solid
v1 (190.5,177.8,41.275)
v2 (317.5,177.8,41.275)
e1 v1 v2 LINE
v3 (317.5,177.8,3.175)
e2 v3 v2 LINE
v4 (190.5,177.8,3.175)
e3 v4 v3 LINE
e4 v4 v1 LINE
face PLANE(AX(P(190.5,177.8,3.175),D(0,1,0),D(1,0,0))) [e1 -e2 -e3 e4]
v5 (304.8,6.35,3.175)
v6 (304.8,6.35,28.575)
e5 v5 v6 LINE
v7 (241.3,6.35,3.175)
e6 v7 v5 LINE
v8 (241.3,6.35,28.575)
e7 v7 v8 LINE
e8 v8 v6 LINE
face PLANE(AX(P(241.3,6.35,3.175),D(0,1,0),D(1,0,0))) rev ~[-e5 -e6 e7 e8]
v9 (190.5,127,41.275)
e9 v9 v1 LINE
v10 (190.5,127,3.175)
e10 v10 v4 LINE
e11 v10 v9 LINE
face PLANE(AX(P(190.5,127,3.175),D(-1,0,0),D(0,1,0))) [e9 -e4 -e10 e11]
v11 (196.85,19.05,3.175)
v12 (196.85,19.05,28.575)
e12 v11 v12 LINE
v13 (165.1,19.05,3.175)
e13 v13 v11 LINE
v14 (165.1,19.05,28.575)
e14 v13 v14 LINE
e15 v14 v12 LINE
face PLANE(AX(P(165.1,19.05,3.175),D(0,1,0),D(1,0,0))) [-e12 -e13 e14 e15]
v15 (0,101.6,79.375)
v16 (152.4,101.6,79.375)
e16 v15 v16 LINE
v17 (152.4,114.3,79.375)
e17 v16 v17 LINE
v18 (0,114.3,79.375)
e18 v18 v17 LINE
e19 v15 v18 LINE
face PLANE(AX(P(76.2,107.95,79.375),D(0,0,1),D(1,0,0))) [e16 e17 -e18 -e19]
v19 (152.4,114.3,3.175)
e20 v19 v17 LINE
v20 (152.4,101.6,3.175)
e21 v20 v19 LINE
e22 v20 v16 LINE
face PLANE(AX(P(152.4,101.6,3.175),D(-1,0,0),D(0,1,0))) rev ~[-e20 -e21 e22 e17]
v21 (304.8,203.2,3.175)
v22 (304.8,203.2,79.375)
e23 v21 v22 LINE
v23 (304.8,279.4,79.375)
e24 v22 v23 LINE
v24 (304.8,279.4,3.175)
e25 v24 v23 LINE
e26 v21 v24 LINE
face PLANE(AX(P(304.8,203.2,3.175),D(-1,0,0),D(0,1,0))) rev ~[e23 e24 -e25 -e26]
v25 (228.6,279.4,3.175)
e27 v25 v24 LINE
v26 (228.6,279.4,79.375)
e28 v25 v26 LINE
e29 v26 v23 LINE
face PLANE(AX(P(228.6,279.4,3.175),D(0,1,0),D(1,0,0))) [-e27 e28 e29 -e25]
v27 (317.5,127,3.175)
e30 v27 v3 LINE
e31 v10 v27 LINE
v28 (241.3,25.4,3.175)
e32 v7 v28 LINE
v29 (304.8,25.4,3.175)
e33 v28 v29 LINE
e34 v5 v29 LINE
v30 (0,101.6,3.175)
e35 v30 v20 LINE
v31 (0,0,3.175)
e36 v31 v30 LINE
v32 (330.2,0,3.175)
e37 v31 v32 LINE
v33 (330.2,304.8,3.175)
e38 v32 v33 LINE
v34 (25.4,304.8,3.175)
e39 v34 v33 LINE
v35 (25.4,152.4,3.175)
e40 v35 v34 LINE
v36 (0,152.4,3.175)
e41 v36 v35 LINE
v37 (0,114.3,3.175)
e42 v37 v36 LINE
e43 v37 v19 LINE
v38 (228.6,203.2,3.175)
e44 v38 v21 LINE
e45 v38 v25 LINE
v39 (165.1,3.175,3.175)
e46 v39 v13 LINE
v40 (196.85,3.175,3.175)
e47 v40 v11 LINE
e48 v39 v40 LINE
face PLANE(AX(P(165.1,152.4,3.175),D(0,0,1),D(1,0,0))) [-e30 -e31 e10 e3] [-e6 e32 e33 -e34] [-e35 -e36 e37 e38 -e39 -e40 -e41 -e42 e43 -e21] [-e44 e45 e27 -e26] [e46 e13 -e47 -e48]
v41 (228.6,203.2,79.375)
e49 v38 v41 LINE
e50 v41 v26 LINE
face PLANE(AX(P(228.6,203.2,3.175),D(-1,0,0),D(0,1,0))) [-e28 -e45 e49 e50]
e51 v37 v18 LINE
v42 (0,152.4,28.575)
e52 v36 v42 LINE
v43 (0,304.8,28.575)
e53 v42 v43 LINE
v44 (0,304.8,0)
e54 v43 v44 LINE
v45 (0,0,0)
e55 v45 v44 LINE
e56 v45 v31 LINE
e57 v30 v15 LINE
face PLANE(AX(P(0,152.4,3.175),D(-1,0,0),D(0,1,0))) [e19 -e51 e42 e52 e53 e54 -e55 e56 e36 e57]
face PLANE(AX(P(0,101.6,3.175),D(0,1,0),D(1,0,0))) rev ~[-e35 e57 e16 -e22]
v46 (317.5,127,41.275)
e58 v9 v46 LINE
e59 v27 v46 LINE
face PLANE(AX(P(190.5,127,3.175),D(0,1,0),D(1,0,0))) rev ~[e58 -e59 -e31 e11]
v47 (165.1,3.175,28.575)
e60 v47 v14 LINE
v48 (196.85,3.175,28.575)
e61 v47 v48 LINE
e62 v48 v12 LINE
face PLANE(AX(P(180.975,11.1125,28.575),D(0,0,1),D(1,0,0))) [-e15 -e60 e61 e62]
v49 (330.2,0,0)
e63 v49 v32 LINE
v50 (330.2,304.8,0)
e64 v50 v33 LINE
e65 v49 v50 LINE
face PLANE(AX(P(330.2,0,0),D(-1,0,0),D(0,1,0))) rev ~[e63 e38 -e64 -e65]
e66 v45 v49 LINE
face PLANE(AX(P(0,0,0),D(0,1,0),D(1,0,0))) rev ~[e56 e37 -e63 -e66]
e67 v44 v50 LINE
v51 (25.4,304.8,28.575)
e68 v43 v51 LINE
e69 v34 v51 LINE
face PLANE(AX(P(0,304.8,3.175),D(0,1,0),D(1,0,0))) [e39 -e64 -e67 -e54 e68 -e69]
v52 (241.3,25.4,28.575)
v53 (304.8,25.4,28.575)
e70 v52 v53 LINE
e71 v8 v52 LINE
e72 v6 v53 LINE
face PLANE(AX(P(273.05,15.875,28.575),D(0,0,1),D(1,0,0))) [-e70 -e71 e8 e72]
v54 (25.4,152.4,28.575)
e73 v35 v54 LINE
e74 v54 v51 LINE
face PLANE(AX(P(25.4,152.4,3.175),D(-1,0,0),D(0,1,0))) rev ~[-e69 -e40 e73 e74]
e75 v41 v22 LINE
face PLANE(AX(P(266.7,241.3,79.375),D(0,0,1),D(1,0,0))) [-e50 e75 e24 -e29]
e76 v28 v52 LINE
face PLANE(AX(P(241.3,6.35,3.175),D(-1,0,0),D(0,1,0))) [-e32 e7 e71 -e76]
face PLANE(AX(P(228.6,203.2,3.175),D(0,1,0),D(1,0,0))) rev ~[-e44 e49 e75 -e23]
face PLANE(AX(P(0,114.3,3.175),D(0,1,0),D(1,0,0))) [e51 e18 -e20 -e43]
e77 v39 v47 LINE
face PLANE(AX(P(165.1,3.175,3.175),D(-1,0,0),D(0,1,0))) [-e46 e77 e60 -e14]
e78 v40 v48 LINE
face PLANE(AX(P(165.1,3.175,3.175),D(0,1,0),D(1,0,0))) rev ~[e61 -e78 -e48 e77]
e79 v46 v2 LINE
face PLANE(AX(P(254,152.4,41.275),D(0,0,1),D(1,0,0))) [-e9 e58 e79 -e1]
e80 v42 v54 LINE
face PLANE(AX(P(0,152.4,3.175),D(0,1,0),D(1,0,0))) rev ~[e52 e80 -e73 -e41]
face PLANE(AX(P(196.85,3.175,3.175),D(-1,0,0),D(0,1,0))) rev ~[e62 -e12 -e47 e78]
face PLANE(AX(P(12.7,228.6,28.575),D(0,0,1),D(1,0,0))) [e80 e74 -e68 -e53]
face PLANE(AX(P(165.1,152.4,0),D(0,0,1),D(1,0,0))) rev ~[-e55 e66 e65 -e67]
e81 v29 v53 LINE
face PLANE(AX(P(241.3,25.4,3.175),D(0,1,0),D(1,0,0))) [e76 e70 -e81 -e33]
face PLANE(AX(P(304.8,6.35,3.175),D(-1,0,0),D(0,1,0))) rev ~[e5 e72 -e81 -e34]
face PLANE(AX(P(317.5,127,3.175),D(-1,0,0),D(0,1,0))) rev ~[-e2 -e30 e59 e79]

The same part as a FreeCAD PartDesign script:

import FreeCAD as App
import Part
import Sketcher
Q = App.Units.Quantity

doc = App.newDocument("Part")
body = doc.addObject("PartDesign::Body", "Body")

# Sketch on XY plane
sketch1 = body.newObject("Sketcher::SketchObject", "Sketch")
sketch1.AttachmentSupport = (doc.getObject("XY_Plane"), [""])
sketch1.MapMode = "FlatFace"
sketch1.addGeometry(Part.LineSegment(App.Vector(0, 304.8, 0), App.Vector(0, 0, 0)), False)
sketch1.addGeometry(Part.LineSegment(App.Vector(0, 0, 0), App.Vector(330.2, 0, 0)), False)
sketch1.addGeometry(Part.LineSegment(App.Vector(330.2, 0, 0), App.Vector(330.2, 304.8, 0)), False)
sketch1.addGeometry(Part.LineSegment(App.Vector(330.2, 304.8, 0), App.Vector(0, 304.8, 0)), False)
sketch1.addConstraint(Sketcher.Constraint("Coincident", 0, 2, 1, 1))
sketch1.addConstraint(Sketcher.Constraint("Coincident", 1, 2, 2, 1))
sketch1.addConstraint(Sketcher.Constraint("Coincident", 2, 2, 3, 1))
sketch1.addConstraint(Sketcher.Constraint("Coincident", 3, 2, 0, 1))
sketch1.addConstraint(Sketcher.Constraint("Vertical", 0))
sketch1.addConstraint(Sketcher.Constraint("Horizontal", 1))
sketch1.addConstraint(Sketcher.Constraint("Vertical", 2))
sketch1.addConstraint(Sketcher.Constraint("Horizontal", 3))
sketch1.addConstraint(Sketcher.Constraint("Coincident", 0, 2, -1, 1))
sketch1.addConstraint(Sketcher.Constraint("DistanceX", 1, 1, 1, 2, Q("13 in")))
sketch1.addConstraint(Sketcher.Constraint("DistanceY", 0, 2, 0, 1, Q("12 in")))
pad1 = body.newObject("PartDesign::Pad", "Pad")
pad1.Profile = sketch1
pad1.Length = Q("0.125 in")

# Sketch on XY plane
sketch2 = body.newObject("Sketcher::SketchObject", "Sketch001")
sketch2.AttachmentSupport = (doc.getObject("XY_Plane"), [""])
sketch2.MapMode = "FlatFace"
sketch2.AttachmentOffset = App.Placement(App.Vector(0, 0, 0.125 * 25.4), App.Rotation())
sketch2.addGeometry(Part.LineSegment(App.Vector(228.6, 279.4, 0), App.Vector(228.6, 203.2, 0)), False)
sketch2.addGeometry(Part.LineSegment(App.Vector(228.6, 203.2, 0), App.Vector(304.8, 203.2, 0)), False)
sketch2.addGeometry(Part.LineSegment(App.Vector(304.8, 203.2, 0), App.Vector(304.8, 279.4, 0)), False)
sketch2.addGeometry(Part.LineSegment(App.Vector(304.8, 279.4, 0), App.Vector(228.6, 279.4, 0)), False)
sketch2.addConstraint(Sketcher.Constraint("Coincident", 0, 2, 1, 1))
sketch2.addConstraint(Sketcher.Constraint("Coincident", 1, 2, 2, 1))
sketch2.addConstraint(Sketcher.Constraint("Coincident", 2, 2, 3, 1))
sketch2.addConstraint(Sketcher.Constraint("Coincident", 3, 2, 0, 1))
sketch2.addConstraint(Sketcher.Constraint("Vertical", 0))
sketch2.addConstraint(Sketcher.Constraint("Horizontal", 1))
sketch2.addConstraint(Sketcher.Constraint("Vertical", 2))
sketch2.addConstraint(Sketcher.Constraint("Horizontal", 3))
sketch2.addConstraint(Sketcher.Constraint("Equal", 3, 0))
sketch2.addConstraint(Sketcher.Constraint("DistanceX", 1, 1, 1, 2, Q("3 in")))
sketch2.addConstraint(Sketcher.Constraint("DistanceX", -1, 1, 0, 2, Q("9 in")))
sketch2.addConstraint(Sketcher.Constraint("DistanceY", -1, 1, 0, 2, Q("8 in")))
pad2 = body.newObject("PartDesign::Pad", "Pad001")
pad2.Profile = sketch2
pad2.Length = Q("3 in")

# Sketch on XY plane
sketch3 = body.newObject("Sketcher::SketchObject", "Sketch002")
sketch3.AttachmentSupport = (doc.getObject("XY_Plane"), [""])
sketch3.MapMode = "FlatFace"
sketch3.AttachmentOffset = App.Placement(App.Vector(0, 0, 0.125 * 25.4), App.Rotation())
sketch3.addGeometry(Part.LineSegment(App.Vector(0, 304.8, 0), App.Vector(0, 152.4, 0)), False)
sketch3.addGeometry(Part.LineSegment(App.Vector(0, 152.4, 0), App.Vector(25.4, 152.4, 0)), False)
sketch3.addGeometry(Part.LineSegment(App.Vector(25.4, 152.4, 0), App.Vector(25.4, 304.8, 0)), False)
sketch3.addGeometry(Part.LineSegment(App.Vector(25.4, 304.8, 0), App.Vector(0, 304.8, 0)), False)
sketch3.addConstraint(Sketcher.Constraint("Coincident", 0, 2, 1, 1))
sketch3.addConstraint(Sketcher.Constraint("Coincident", 1, 2, 2, 1))
sketch3.addConstraint(Sketcher.Constraint("Coincident", 2, 2, 3, 1))
sketch3.addConstraint(Sketcher.Constraint("Coincident", 3, 2, 0, 1))
sketch3.addConstraint(Sketcher.Constraint("Vertical", 0))
sketch3.addConstraint(Sketcher.Constraint("Horizontal", 1))
sketch3.addConstraint(Sketcher.Constraint("Vertical", 2))
sketch3.addConstraint(Sketcher.Constraint("Horizontal", 3))
sketch3.addConstraint(Sketcher.Constraint("PointOnObject", 0, 2, -2))
sketch3.addConstraint(Sketcher.Constraint("DistanceX", 1, 1, 1, 2, Q("1 in")))
sketch3.addConstraint(Sketcher.Constraint("DistanceY", 0, 2, 0, 1, Q("6 in")))
sketch3.addConstraint(Sketcher.Constraint("DistanceY", -1, 1, 0, 2, Q("6 in")))
pad3 = body.newObject("PartDesign::Pad", "Pad002")
pad3.Profile = sketch3
pad3.Length = Q("1 in")

# Sketch on XY plane
sketch4 = body.newObject("Sketcher::SketchObject", "Sketch003")
sketch4.AttachmentSupport = (doc.getObject("XY_Plane"), [""])
sketch4.MapMode = "FlatFace"
sketch4.AttachmentOffset = App.Placement(App.Vector(0, 0, 0.125 * 25.4), App.Rotation())
sketch4.addGeometry(Part.LineSegment(App.Vector(0, 114.3, 0), App.Vector(0, 101.6, 0)), False)
sketch4.addGeometry(Part.LineSegment(App.Vector(0, 101.6, 0), App.Vector(152.4, 101.6, 0)), False)
sketch4.addGeometry(Part.LineSegment(App.Vector(152.4, 101.6, 0), App.Vector(152.4, 114.3, 0)), False)
sketch4.addGeometry(Part.LineSegment(App.Vector(152.4, 114.3, 0), App.Vector(0, 114.3, 0)), False)
sketch4.addConstraint(Sketcher.Constraint("Coincident", 0, 2, 1, 1))
sketch4.addConstraint(Sketcher.Constraint("Coincident", 1, 2, 2, 1))
sketch4.addConstraint(Sketcher.Constraint("Coincident", 2, 2, 3, 1))
sketch4.addConstraint(Sketcher.Constraint("Coincident", 3, 2, 0, 1))
sketch4.addConstraint(Sketcher.Constraint("Vertical", 0))
sketch4.addConstraint(Sketcher.Constraint("Horizontal", 1))
sketch4.addConstraint(Sketcher.Constraint("Vertical", 2))
sketch4.addConstraint(Sketcher.Constraint("Horizontal", 3))
sketch4.addConstraint(Sketcher.Constraint("PointOnObject", 0, 2, -2))
sketch4.addConstraint(Sketcher.Constraint("DistanceX", 1, 1, 1, 2, Q("6 in")))
sketch4.addConstraint(Sketcher.Constraint("DistanceY", 0, 2, 0, 1, Q("0.5 in")))
sketch4.addConstraint(Sketcher.Constraint("DistanceY", -1, 1, 0, 2, Q("4 in")))
pad4 = body.newObject("PartDesign::Pad", "Pad003")
pad4.Profile = sketch4
pad4.Length = Q("3 in")

# Sketch on XY plane
sketch5 = body.newObject("Sketcher::SketchObject", "Sketch004")
sketch5.AttachmentSupport = (doc.getObject("XY_Plane"), [""])
sketch5.MapMode = "FlatFace"
sketch5.AttachmentOffset = App.Placement(App.Vector(0, 0, 0.125 * 25.4), App.Rotation())
sketch5.addGeometry(Part.LineSegment(App.Vector(190.5, 177.8, 0), App.Vector(190.5, 127, 0)), False)
sketch5.addGeometry(Part.LineSegment(App.Vector(190.5, 127, 0), App.Vector(317.5, 127, 0)), False)
sketch5.addGeometry(Part.LineSegment(App.Vector(317.5, 127, 0), App.Vector(317.5, 177.8, 0)), False)
sketch5.addGeometry(Part.LineSegment(App.Vector(317.5, 177.8, 0), App.Vector(190.5, 177.8, 0)), False)
sketch5.addConstraint(Sketcher.Constraint("Coincident", 0, 2, 1, 1))
sketch5.addConstraint(Sketcher.Constraint("Coincident", 1, 2, 2, 1))
sketch5.addConstraint(Sketcher.Constraint("Coincident", 2, 2, 3, 1))
sketch5.addConstraint(Sketcher.Constraint("Coincident", 3, 2, 0, 1))
sketch5.addConstraint(Sketcher.Constraint("Vertical", 0))
sketch5.addConstraint(Sketcher.Constraint("Horizontal", 1))
sketch5.addConstraint(Sketcher.Constraint("Vertical", 2))
sketch5.addConstraint(Sketcher.Constraint("Horizontal", 3))
sketch5.addConstraint(Sketcher.Constraint("DistanceX", 1, 1, 1, 2, Q("5 in")))
sketch5.addConstraint(Sketcher.Constraint("DistanceY", 0, 2, 0, 1, Q("2 in")))
sketch5.addConstraint(Sketcher.Constraint("DistanceY", -1, 1, 0, 2, Q("5 in")))
sketch5.addConstraint(Sketcher.Constraint("DistanceX", -1, 1, 0, 2, Q("7.5 in")))
pad5 = body.newObject("PartDesign::Pad", "Pad004")
pad5.Profile = sketch5
pad5.Length = Q("1.5 in")

# Sketch on XY plane
sketch6 = body.newObject("Sketcher::SketchObject", "Sketch005")
sketch6.AttachmentSupport = (doc.getObject("XY_Plane"), [""])
sketch6.MapMode = "FlatFace"
sketch6.AttachmentOffset = App.Placement(App.Vector(0, 0, 0.125 * 25.4), App.Rotation())
sketch6.addGeometry(Part.LineSegment(App.Vector(241.3, 25.4, 0), App.Vector(241.3, 6.35, 0)), False)
sketch6.addGeometry(Part.LineSegment(App.Vector(241.3, 6.35, 0), App.Vector(304.8, 6.35, 0)), False)
sketch6.addGeometry(Part.LineSegment(App.Vector(304.8, 6.35, 0), App.Vector(304.8, 25.4, 0)), False)
sketch6.addGeometry(Part.LineSegment(App.Vector(304.8, 25.4, 0), App.Vector(241.3, 25.4, 0)), False)
sketch6.addConstraint(Sketcher.Constraint("Coincident", 0, 2, 1, 1))
sketch6.addConstraint(Sketcher.Constraint("Coincident", 1, 2, 2, 1))
sketch6.addConstraint(Sketcher.Constraint("Coincident", 2, 2, 3, 1))
sketch6.addConstraint(Sketcher.Constraint("Coincident", 3, 2, 0, 1))
sketch6.addConstraint(Sketcher.Constraint("Vertical", 0))
sketch6.addConstraint(Sketcher.Constraint("Horizontal", 1))
sketch6.addConstraint(Sketcher.Constraint("Vertical", 2))
sketch6.addConstraint(Sketcher.Constraint("Horizontal", 3))
sketch6.addConstraint(Sketcher.Constraint("DistanceX", 1, 1, 1, 2, Q("2.5 in")))
sketch6.addConstraint(Sketcher.Constraint("DistanceX", -1, 1, 1, 2, Q("12 in")))
sketch6.addConstraint(Sketcher.Constraint("DistanceY", -1, 1, 2, 2, Q("1 in")))
sketch6.addConstraint(Sketcher.Constraint("DistanceY", 0, 2, 0, 1, Q("0.75 in")))
pad6 = body.newObject("PartDesign::Pad", "Pad005")
pad6.Profile = sketch6
pad6.Length = Q("1 in")

# Sketch on XY plane
sketch7 = body.newObject("Sketcher::SketchObject", "Sketch006")
sketch7.AttachmentSupport = (doc.getObject("XY_Plane"), [""])
sketch7.MapMode = "FlatFace"
sketch7.AttachmentOffset = App.Placement(App.Vector(0, 0, 0.125 * 25.4), App.Rotation())
sketch7.addGeometry(Part.LineSegment(App.Vector(165.1, 19.05, 0), App.Vector(165.1, 3.175, 0)), False)
sketch7.addGeometry(Part.LineSegment(App.Vector(165.1, 3.175, 0), App.Vector(196.85, 3.175, 0)), False)
sketch7.addGeometry(Part.LineSegment(App.Vector(196.85, 3.175, 0), App.Vector(196.85, 19.05, 0)), False)
sketch7.addGeometry(Part.LineSegment(App.Vector(196.85, 19.05, 0), App.Vector(165.1, 19.05, 0)), False)
sketch7.addConstraint(Sketcher.Constraint("Coincident", 0, 2, 1, 1))
sketch7.addConstraint(Sketcher.Constraint("Coincident", 1, 2, 2, 1))
sketch7.addConstraint(Sketcher.Constraint("Coincident", 2, 2, 3, 1))
sketch7.addConstraint(Sketcher.Constraint("Coincident", 3, 2, 0, 1))
sketch7.addConstraint(Sketcher.Constraint("Vertical", 0))
sketch7.addConstraint(Sketcher.Constraint("Horizontal", 1))
sketch7.addConstraint(Sketcher.Constraint("Vertical", 2))
sketch7.addConstraint(Sketcher.Constraint("Horizontal", 3))
sketch7.addConstraint(Sketcher.Constraint("DistanceX", 1, 1, 1, 2, Q("1.25 in")))
sketch7.addConstraint(Sketcher.Constraint("DistanceX", -1, 1, 0, 2, Q("6.5 in")))
sketch7.addConstraint(Sketcher.Constraint("DistanceY", 0, 2, 0, 1, Q("0.625 in")))
sketch7.addConstraint(Sketcher.Constraint("DistanceY", -1, 1, 2, 2, Q("0.75 in")))
pad7 = body.newObject("PartDesign::Pad", "Pad006")
pad7.Profile = sketch7
pad7.Length = Q("1 in")

doc.recompute()
